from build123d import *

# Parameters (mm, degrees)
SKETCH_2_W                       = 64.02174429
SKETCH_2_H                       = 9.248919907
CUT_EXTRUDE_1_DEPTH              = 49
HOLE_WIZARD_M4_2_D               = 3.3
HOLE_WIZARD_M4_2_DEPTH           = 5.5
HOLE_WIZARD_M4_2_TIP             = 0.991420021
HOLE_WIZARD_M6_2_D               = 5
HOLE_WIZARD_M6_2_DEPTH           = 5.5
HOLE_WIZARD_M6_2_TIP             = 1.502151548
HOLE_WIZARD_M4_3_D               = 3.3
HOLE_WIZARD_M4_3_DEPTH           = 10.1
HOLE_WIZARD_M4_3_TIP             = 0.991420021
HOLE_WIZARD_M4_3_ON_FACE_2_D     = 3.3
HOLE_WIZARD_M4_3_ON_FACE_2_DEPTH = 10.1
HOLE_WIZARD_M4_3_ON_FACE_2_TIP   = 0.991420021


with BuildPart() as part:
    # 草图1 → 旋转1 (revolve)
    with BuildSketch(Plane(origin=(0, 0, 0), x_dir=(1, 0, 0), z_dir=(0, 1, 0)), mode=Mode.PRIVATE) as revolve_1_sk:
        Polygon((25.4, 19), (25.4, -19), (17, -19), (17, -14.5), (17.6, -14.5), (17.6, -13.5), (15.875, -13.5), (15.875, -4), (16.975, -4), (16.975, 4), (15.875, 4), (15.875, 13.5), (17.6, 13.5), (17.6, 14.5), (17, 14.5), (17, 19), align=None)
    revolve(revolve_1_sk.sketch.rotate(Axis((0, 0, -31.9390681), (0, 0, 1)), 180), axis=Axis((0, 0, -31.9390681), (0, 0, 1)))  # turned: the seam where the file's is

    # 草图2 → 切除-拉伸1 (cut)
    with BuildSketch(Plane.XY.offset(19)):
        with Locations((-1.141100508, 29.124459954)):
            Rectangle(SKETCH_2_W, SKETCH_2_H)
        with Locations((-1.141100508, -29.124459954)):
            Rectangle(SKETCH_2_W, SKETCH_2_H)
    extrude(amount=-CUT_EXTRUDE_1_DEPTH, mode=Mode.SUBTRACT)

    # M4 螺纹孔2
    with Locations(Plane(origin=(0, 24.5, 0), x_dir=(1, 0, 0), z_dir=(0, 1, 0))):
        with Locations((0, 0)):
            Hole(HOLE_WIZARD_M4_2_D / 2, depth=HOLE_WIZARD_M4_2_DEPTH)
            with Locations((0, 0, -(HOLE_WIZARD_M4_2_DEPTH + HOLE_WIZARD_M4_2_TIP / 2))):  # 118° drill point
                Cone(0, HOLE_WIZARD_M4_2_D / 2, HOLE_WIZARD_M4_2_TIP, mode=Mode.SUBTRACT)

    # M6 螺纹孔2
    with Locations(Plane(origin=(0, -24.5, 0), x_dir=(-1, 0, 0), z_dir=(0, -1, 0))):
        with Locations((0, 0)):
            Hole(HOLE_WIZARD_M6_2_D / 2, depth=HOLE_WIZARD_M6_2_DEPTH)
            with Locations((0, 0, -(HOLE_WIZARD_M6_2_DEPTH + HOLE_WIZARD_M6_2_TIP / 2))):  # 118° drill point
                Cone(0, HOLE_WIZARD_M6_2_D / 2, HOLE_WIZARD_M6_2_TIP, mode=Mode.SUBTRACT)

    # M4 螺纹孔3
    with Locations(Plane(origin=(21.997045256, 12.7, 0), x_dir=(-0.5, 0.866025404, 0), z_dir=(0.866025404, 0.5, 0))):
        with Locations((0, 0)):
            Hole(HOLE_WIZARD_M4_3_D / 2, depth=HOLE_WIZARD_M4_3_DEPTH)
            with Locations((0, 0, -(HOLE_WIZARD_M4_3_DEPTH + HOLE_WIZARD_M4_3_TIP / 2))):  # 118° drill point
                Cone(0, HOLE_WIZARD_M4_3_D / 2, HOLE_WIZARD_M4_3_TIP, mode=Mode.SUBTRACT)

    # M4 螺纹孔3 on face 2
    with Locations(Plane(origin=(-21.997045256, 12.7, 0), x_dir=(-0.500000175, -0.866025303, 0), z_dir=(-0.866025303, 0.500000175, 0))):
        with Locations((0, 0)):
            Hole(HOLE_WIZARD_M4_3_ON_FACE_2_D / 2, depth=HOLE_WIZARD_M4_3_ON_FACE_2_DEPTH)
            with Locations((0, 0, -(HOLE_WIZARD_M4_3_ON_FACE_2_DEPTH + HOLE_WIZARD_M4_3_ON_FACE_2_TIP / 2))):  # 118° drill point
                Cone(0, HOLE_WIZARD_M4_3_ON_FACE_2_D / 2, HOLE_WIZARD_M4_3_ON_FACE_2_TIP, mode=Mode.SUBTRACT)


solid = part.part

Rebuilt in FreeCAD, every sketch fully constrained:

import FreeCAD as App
import Part
import Sketcher
from FreeCAD import Vector
Q = App.Units.Quantity


def add_polygon(sketch, points):
    """Adds a closed chain of lines whose ends are joined by coincident constraints."""
    first, n = sketch.GeometryCount, len(points)
    for a, b in zip(points, points[1:] + points[:1]):
        sketch.addGeometry(Part.LineSegment(App.Vector(*a, 0), App.Vector(*b, 0)), False)
    for i in range(n):
        sketch.addConstraint(Sketcher.Constraint("Coincident", first + i, 2, first + (i + 1) % n, 1))

doc = App.newDocument("Part")
body = doc.addObject("PartDesign::Body", "Body")

# Sketch on XZ plane
sketch1 = doc.addObject("Sketcher::SketchObject", "Sketch")
body.addObject(sketch1)
sketch1.AttachmentSupport = (doc.XZ_Plane, [""])
sketch1.MapMode = "FlatFace"
add_polygon(sketch1, [(25.4, 19), (25.4, -19), (17, -19), (17, -14.5), (17.6, -14.5), (17.6, -13.5), (15.875, -13.5), (15.875, -4), (16.975, -4), (16.975, 4), (15.875, 4), (15.875, 13.5), (17.6, 13.5), (17.6, 14.5), (17, 14.5), (17, 19)])  # lines 0-15
sketch1.addConstraint(Sketcher.Constraint("Vertical", 0))
sketch1.addConstraint(Sketcher.Constraint("Horizontal", 1))
sketch1.addConstraint(Sketcher.Constraint("Vertical", 2))
sketch1.addConstraint(Sketcher.Constraint("Horizontal", 3))
sketch1.addConstraint(Sketcher.Constraint("Vertical", 4))
sketch1.addConstraint(Sketcher.Constraint("Horizontal", 5))
sketch1.addConstraint(Sketcher.Constraint("Vertical", 6))
sketch1.addConstraint(Sketcher.Constraint("Horizontal", 7))
sketch1.addConstraint(Sketcher.Constraint("Vertical", 8))
sketch1.addConstraint(Sketcher.Constraint("Horizontal", 9))
sketch1.addConstraint(Sketcher.Constraint("Vertical", 10))
sketch1.addConstraint(Sketcher.Constraint("Horizontal", 11))
sketch1.addConstraint(Sketcher.Constraint("Vertical", 12))
sketch1.addConstraint(Sketcher.Constraint("Horizontal", 13))
sketch1.addConstraint(Sketcher.Constraint("Vertical", 14))
sketch1.addConstraint(Sketcher.Constraint("Horizontal", 15))
sketch1.addConstraint(Sketcher.Constraint("Symmetric", 6, 2, 9, 2, -1))
sketch1.addConstraint(Sketcher.Constraint("Symmetric", 4, 2, 11, 2, -1))
sketch1.addConstraint(Sketcher.Constraint("Symmetric", 2, 2, 13, 2, -1))
sketch1.addConstraint(Sketcher.Constraint("Equal", 2, 14))
sketch1.addConstraint(Sketcher.Constraint("DistanceY", 0, 2, 0, 1, Q("38 mm")))
sketch1.addConstraint(Sketcher.Constraint("DistanceY", 4, 1, 4, 2, Q("1 mm")))
sketch1.addConstraint(Sketcher.Constraint("DistanceY", 8, 1, 8, 2, Q("8 mm")))
sketch1.addConstraint(Sketcher.Constraint("DistanceX", 1, 2, 1, 1, Q("8.4 mm")))
sketch1.addConstraint(Sketcher.Constraint("DistanceX", 3, 1, 3, 2, Q("0.6 mm")))
sketch1.addConstraint(Sketcher.Constraint("DistanceX", 7, 1, 7, 2, Q("1.1 mm")))
sketch1.addConstraint(Sketcher.Constraint("DistanceY", 2, 1, 2, 2, Q("4.5 mm")))
sketch1.addConstraint(Sketcher.Constraint("DistanceX", -1, 1, 1, 2, Q("17 mm")))
sketch1.addConstraint(Sketcher.Constraint("DistanceX", 5, 2, 5, 1, Q("1.725 mm")))
revolution = doc.addObject("PartDesign::Revolution", "Revolution")
body.addObject(revolution)
revolution.Profile = sketch1
revolution.ReferenceAxis = (sketch1, ["V_Axis"])
revolution.Angle = 360

# Sketch on XY plane
sketch2 = doc.addObject("Sketcher::SketchObject", "Sketch001")
body.addObject(sketch2)
sketch2.AttachmentSupport = (doc.XY_Plane, [""])
sketch2.MapMode = "FlatFace"
sketch2.AttachmentOffset = App.Placement(Vector(0, 0, 19), App.Rotation())
add_polygon(sketch2, [(-33.151973, 33.74892), (-33.151973, 24.5), (30.869772, 24.5), (30.869772, 33.74892)])  # lines 0-3
add_polygon(sketch2, [(-33.151973, -24.5), (-33.151973, -33.74892), (30.869772, -33.74892), (30.869772, -24.5)])  # lines 4-7
sketch2.addConstraint(Sketcher.Constraint("Vertical", 0))
sketch2.addConstraint(Sketcher.Constraint("Horizontal", 1))
sketch2.addConstraint(Sketcher.Constraint("Vertical", 2))
sketch2.addConstraint(Sketcher.Constraint("Horizontal", 3))
sketch2.addConstraint(Sketcher.Constraint("Vertical", 4))
sketch2.addConstraint(Sketcher.Constraint("Horizontal", 5))
sketch2.addConstraint(Sketcher.Constraint("Vertical", 6))
sketch2.addConstraint(Sketcher.Constraint("Horizontal", 7))
sketch2.addConstraint(Sketcher.Constraint("Symmetric", 3, 2, 4, 2, -1))
sketch2.addConstraint(Sketcher.Constraint("Symmetric", 1, 2, 6, 2, -1))
sketch2.addConstraint(Sketcher.Constraint("DistanceY", 6, 2, 1, 2, Q("49 mm")))
sketch2.addConstraint(Sketcher.Constraint("DistanceY", 0, 2, 0, 1, Q("9.24892 mm")))
sketch2.addConstraint(Sketcher.Constraint("DistanceX", 1, 1, 1, 2, Q("64.021744 mm")))
sketch2.addConstraint(Sketcher.Constraint("DistanceX", -1, 1, 1, 2, Q("30.869772 mm")))
pocket1 = doc.addObject("PartDesign::Pocket", "Pocket")
body.addObject(pocket1)
pocket1.Profile = sketch2
pocket1.Length = 49

# Sketch on XZ plane
sketch3 = doc.addObject("Sketcher::SketchObject", "Sketch002")
body.addObject(sketch3)
sketch3.AttachmentSupport = (doc.XZ_Plane, [""])
sketch3.MapMode = "FlatFace"
sketch3.AttachmentOffset = App.Placement(Vector(0, 0, -24.5), App.Rotation())
sketch3.addGeometry(Part.Circle(Vector(0, 0, 0), Vector(0, 0, 1), 1.65), False)
sketch3.addConstraint(Sketcher.Constraint("Coincident", 0, 3, -1, 1))
sketch3.addConstraint(Sketcher.Constraint("Diameter", 0, Q("3.3 mm")))
doc.recompute()
hole = doc.addObject("PartDesign::Hole", "Hole")
body.addObject(hole)
hole.Profile = sketch3
hole.ThreadType = "None"
hole.Diameter = 3.3
hole.DepthType = "Dimension"
hole.Depth = 5.5
hole.DrillPoint = "Angled"
hole.DrillPointAngle = 118
hole.Reversed = True

# Sketch on XZ plane
sketch4 = doc.addObject("Sketcher::SketchObject", "Sketch003")
body.addObject(sketch4)
sketch4.AttachmentSupport = (doc.XZ_Plane, [""])
sketch4.MapMode = "FlatFace"
sketch4.AttachmentOffset = App.Placement(Vector(0, 0, 24.5), App.Rotation())
sketch4.addGeometry(Part.Circle(Vector(0, 0, 0), Vector(0, 0, 1), 2.5), False)
sketch4.addConstraint(Sketcher.Constraint("Coincident", 0, 3, -1, 1))
sketch4.addConstraint(Sketcher.Constraint("Diameter", 0, Q("5 mm")))
doc.recompute()
hole2 = doc.addObject("PartDesign::Hole", "Hole001")
body.addObject(hole2)
hole2.Profile = sketch4
hole2.ThreadType = "None"
hole2.Diameter = 5
hole2.DepthType = "Dimension"
hole2.Depth = 5.5
hole2.DrillPoint = "Angled"
hole2.DrillPointAngle = 118

# Sketch on an angled plane
sketch5 = doc.addObject("Sketcher::SketchObject", "Sketch004")
body.addObject(sketch5)
sketch5.Placement = App.Placement(Vector(21.997045, 12.7, 0), App.Rotation(Vector(-0.5, 0.866025404, 0), Vector(0, 0, 1), Vector(0.866025404, 0.5, 0), "ZXY"))
sketch5.addGeometry(Part.Circle(Vector(0, 0, 0), Vector(0, 0, 1), 1.65), False)
sketch5.addConstraint(Sketcher.Constraint("Coincident", 0, 3, -1, 1))
sketch5.addConstraint(Sketcher.Constraint("Diameter", 0, Q("3.3 mm")))
doc.recompute()
hole3 = doc.addObject("PartDesign::Hole", "Hole002")
body.addObject(hole3)
hole3.Profile = sketch5
hole3.ThreadType = "None"
hole3.Diameter = 3.3
hole3.DepthType = "Dimension"
hole3.Depth = 10.1
hole3.DrillPoint = "Angled"
hole3.DrillPointAngle = 118

# Sketch on an angled plane
sketch6 = doc.addObject("Sketcher::SketchObject", "Sketch005")
body.addObject(sketch6)
sketch6.Placement = App.Placement(Vector(-21.997043, 12.700004, 0), App.Rotation(Vector(-0.500000175, -0.866025303, 0), Vector(0, 0, 1), Vector(-0.866025303, 0.500000175, 0), "ZXY"))
sketch6.addGeometry(Part.Circle(Vector(0.000005, 0, 0), Vector(0, 0, 1), 1.65), False)
sketch6.addConstraint(Sketcher.Constraint("Coincident", 0, 3, -1, 1))
sketch6.addConstraint(Sketcher.Constraint("Diameter", 0, Q("3.3 mm")))
doc.recompute()
hole4 = doc.addObject("PartDesign::Hole", "Hole003")
body.addObject(hole4)
hole4.Profile = sketch6
hole4.ThreadType = "None"
hole4.Diameter = 3.3
hole4.DepthType = "Dimension"
hole4.Depth = 10.1
hole4.DrillPoint = "Angled"
hole4.DrillPointAngle = 118

doc.recompute()
